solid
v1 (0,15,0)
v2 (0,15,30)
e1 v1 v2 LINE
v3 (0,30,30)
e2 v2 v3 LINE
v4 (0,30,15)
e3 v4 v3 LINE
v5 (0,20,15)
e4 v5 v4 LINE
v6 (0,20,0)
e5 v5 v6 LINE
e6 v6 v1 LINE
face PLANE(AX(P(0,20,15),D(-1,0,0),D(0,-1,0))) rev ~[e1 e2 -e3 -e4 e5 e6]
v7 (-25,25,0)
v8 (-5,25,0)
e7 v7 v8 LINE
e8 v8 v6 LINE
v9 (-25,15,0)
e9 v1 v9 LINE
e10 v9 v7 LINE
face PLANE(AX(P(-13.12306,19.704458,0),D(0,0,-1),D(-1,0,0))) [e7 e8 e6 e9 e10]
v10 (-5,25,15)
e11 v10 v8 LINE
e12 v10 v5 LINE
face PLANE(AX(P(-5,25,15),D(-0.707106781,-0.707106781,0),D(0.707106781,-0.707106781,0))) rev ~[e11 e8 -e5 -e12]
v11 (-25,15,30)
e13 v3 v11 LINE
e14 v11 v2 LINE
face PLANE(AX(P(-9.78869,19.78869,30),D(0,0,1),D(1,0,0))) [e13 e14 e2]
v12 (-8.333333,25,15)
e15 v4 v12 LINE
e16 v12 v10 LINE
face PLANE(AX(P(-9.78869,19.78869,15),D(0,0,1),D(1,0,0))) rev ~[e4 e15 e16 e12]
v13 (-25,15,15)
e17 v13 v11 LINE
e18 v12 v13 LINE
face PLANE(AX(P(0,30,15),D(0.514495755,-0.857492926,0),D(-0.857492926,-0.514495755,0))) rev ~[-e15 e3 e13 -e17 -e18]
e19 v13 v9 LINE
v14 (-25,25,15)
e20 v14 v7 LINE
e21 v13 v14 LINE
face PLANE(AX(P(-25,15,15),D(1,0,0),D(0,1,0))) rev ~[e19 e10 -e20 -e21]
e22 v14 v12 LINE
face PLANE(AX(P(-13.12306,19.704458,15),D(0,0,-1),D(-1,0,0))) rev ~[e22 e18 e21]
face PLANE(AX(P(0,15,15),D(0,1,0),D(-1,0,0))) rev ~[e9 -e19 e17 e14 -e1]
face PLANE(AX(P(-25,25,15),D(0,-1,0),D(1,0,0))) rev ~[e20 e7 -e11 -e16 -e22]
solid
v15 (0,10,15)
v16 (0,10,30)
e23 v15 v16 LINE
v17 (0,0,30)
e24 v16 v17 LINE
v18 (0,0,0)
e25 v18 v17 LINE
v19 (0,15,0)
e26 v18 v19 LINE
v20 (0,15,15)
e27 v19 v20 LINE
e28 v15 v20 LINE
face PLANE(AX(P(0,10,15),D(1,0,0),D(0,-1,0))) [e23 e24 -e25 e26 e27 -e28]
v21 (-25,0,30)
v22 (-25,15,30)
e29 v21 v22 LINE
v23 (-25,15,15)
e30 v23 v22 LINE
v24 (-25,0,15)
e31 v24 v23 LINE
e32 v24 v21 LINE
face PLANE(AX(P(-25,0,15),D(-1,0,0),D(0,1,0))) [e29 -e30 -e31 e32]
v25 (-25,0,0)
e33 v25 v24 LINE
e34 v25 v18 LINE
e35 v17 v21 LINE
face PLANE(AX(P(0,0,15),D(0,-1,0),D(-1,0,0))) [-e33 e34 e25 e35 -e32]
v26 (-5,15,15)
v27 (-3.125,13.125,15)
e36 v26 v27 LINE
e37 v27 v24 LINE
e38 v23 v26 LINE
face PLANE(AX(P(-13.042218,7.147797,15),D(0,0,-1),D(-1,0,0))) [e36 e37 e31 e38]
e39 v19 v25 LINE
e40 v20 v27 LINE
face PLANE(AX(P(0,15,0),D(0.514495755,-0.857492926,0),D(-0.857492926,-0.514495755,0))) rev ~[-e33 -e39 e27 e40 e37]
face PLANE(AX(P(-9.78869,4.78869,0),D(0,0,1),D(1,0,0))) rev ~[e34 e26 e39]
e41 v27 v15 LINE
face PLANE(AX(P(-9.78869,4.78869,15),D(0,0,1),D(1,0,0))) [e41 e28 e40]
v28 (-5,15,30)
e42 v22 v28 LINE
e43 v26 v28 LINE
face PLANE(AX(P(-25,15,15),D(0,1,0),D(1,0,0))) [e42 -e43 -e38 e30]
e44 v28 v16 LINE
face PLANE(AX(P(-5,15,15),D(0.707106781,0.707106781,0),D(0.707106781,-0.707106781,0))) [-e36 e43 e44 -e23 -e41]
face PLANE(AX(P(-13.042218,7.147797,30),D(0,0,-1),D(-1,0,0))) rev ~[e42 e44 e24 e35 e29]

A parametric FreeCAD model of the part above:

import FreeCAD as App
import Part
import Sketcher

V = App.Vector
Q = App.Units.Quantity


def add_polygon(sketch, points):
    """Adds a closed chain of lines whose ends are joined by coincident constraints."""
    first, n = sketch.GeometryCount, len(points)
    for a, b in zip(points, points[1:] + points[:1]):
        sketch.addGeometry(Part.LineSegment(App.Vector(*a, 0), App.Vector(*b, 0)), False)
    for i in range(n):
        sketch.addConstraint(Sketcher.Constraint("Coincident", first + i, 2, first + (i + 1) % n, 1))

doc = App.newDocument("Part")
body = doc.addObject("PartDesign::Body", "Body")

# Sketch on XY plane
sketch1 = body.newObject("Sketcher::SketchObject", "Sketch")
sketch1.AttachmentSupport = (doc.getObject("XY_Plane"), [""])
sketch1.MapMode = "FlatFace"
add_polygon(sketch1, [(-25, 0), (0, 0), (0, 15)])  # lines 0-2
sketch1.addConstraint(Sketcher.Constraint("Horizontal", 0))
sketch1.addConstraint(Sketcher.Constraint("Vertical", 1))
sketch1.addConstraint(Sketcher.Constraint("Coincident", 0, 2, -1, 1))
sketch1.addConstraint(Sketcher.Constraint("DistanceX", 0, 1, 0, 2, Q("25 mm")))
sketch1.addConstraint(Sketcher.Constraint("DistanceY", 1, 1, 1, 2, Q("15 mm")))
pad1 = body.newObject("PartDesign::Pad", "Pad")
pad1.Profile = sketch1
pad1.Length = 15

# Sketch on XY plane
sketch2 = body.newObject("Sketcher::SketchObject", "Sketch001")
sketch2.AttachmentSupport = (doc.getObject("XY_Plane"), [""])
sketch2.MapMode = "FlatFace"
sketch2.AttachmentOffset = App.Placement(V(0, 0, 15), App.Rotation())
add_polygon(sketch2, [(-25, 15), (-25, 0), (0, 0), (0, 10), (-5, 15)])  # lines 0-4
sketch2.addConstraint(Sketcher.Constraint("Vertical", 0))
sketch2.addConstraint(Sketcher.Constraint("Horizontal", 1))
sketch2.addConstraint(Sketcher.Constraint("Vertical", 2))
sketch2.addConstraint(Sketcher.Constraint("Horizontal", 4))
sketch2.addConstraint(Sketcher.Constraint("Coincident", 1, 2, -1, 1))
sketch2.addConstraint(Sketcher.Constraint("DistanceX", 1, 1, 1, 2, Q("25 mm")))
sketch2.addConstraint(Sketcher.Constraint("DistanceX", 4, 2, 4, 1, Q("20 mm")))
sketch2.addConstraint(Sketcher.Constraint("DistanceY", 0, 2, 0, 1, Q("15 mm")))
sketch2.addConstraint(Sketcher.Constraint("DistanceY", 2, 1, 2, 2, Q("10 mm")))
pad2 = body.newObject("PartDesign::Pad", "Pad001")
pad2.Profile = sketch2
pad2.Length = 15
body2 = doc.addObject("PartDesign::Body", "Body001")

# Sketch on XY plane
sketch3 = body2.newObject("Sketcher::SketchObject", "Sketch002")
sketch3.AttachmentSupport = (doc.getObject("XY_Plane001"), [""])
sketch3.MapMode = "FlatFace"
sketch3.AttachmentOffset = App.Placement(V(0, 0, 15), App.Rotation())
add_polygon(sketch3, [(-25, 15), (0, 15), (0, 30)])  # lines 0-2
sketch3.addConstraint(Sketcher.Constraint("Horizontal", 0))
sketch3.addConstraint(Sketcher.Constraint("Vertical", 1))
sketch3.addConstraint(Sketcher.Constraint("PointOnObject", 0, 2, -2))
sketch3.addConstraint(Sketcher.Constraint("DistanceX", 0, 1, 0, 2, Q("25 mm")))
sketch3.addConstraint(Sketcher.Constraint("DistanceY", 1, 1, 1, 2, Q("15 mm")))
sketch3.addConstraint(Sketcher.Constraint("DistanceY", -1, 1, 0, 2, Q("15 mm")))
pad3 = body2.newObject("PartDesign::Pad", "Pad002")
pad3.Profile = sketch3
pad3.Length = 15

# Sketch on XY plane
sketch4 = body2.newObject("Sketcher::SketchObject", "Sketch003")
sketch4.AttachmentSupport = (doc.getObject("XY_Plane001"), [""])
sketch4.MapMode = "FlatFace"
sketch4.AttachmentOffset = App.Placement(V(0, 0, 15), App.Rotation())
add_polygon(sketch4, [(-25, 15), (-25, 25), (-5, 25), (0, 20), (0, 15)])  # lines 0-4
sketch4.addConstraint(Sketcher.Constraint("Vertical", 0))
sketch4.addConstraint(Sketcher.Constraint("Horizontal", 1))
sketch4.addConstraint(Sketcher.Constraint("Vertical", 3))
sketch4.addConstraint(Sketcher.Constraint("Horizontal", 4))
sketch4.addConstraint(Sketcher.Constraint("PointOnObject", 2, 2, -2))
sketch4.addConstraint(Sketcher.Constraint("DistanceX", 1, 1, 1, 2, Q("20 mm")))
sketch4.addConstraint(Sketcher.Constraint("DistanceX", 4, 2, 4, 1, Q("25 mm")))
sketch4.addConstraint(Sketcher.Constraint("DistanceY", 0, 1, 0, 2, Q("10 mm")))
sketch4.addConstraint(Sketcher.Constraint("DistanceY", 3, 2, 3, 1, Q("5 mm")))
sketch4.addConstraint(Sketcher.Constraint("DistanceY", -1, 1, 0, 2, Q("25 mm")))
pad4 = body2.newObject("PartDesign::Pad", "Pad003")
pad4.Profile = sketch4
pad4.Length = 15
pad4.Reversed = True

doc.recompute()
